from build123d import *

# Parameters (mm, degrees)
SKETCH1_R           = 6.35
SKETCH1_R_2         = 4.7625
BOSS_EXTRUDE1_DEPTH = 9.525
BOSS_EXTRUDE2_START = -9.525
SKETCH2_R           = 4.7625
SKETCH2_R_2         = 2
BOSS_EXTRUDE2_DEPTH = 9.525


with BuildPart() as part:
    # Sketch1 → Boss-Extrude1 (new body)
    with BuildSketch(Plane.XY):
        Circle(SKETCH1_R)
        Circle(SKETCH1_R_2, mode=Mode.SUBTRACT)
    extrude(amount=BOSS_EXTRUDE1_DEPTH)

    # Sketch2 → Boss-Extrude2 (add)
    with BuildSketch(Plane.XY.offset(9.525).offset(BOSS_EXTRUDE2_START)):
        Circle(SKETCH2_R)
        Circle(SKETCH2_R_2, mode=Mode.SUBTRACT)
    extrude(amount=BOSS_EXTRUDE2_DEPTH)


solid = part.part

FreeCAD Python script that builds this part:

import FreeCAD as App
import Part
import Sketcher

V = App.Vector
Q = App.Units.Quantity

doc = App.newDocument("Part")
body = doc.addObject("PartDesign::Body", "Body")

# Sketch on XY plane
sketch1 = body.newObject("Sketcher::SketchObject", "Sketch")
sketch1.AttachmentSupport = (doc.getObject("XY_Plane"), [""])
sketch1.MapMode = "FlatFace"
sketch1.addGeometry([
    Part.Circle(V(0, 0, 0), V(0, 0, 1), 6.3),
    Part.Circle(V(0, 0, 0), V(0, 0, 1), 4.8),
], False)
sketch1.addConstraint([
    Sketcher.Constraint("Coincident", 0, 3, -1, 1),
    Sketcher.Constraint("Coincident", 1, 3, -1, 1),
    Sketcher.Constraint("Diameter", 0, Q("0.5 in")),
    Sketcher.Constraint("Diameter", 1, Q("0.375 in")),
])
pad1 = body.newObject("PartDesign::Pad", "Pad")
pad1.Profile = sketch1
pad1.Length = Q("0.375 in")

# Sketch on XY plane
sketch2 = body.newObject("Sketcher::SketchObject", "Sketch001")
sketch2.AttachmentSupport = (doc.getObject("XY_Plane"), [""])
sketch2.MapMode = "FlatFace"
sketch2.addGeometry([
    Part.Circle(V(0, 0, 0), V(0, 0, 1), 4.8),
    Part.Circle(V(0, 0, 0), V(0, 0, 1), 2),
], False)
sketch2.addConstraint([
    Sketcher.Constraint("Coincident", 0, 3, -1, 1),
    Sketcher.Constraint("Coincident", 1, 3, -1, 1),
    Sketcher.Constraint("Diameter", 0, Q("0.375 in")),
    Sketcher.Constraint("Diameter", 1, Q("4 mm")),
])
pad2 = body.newObject("PartDesign::Pad", "Pad001")
pad2.Profile = sketch2
pad2.Length = Q("0.375 in")

doc.recompute()
